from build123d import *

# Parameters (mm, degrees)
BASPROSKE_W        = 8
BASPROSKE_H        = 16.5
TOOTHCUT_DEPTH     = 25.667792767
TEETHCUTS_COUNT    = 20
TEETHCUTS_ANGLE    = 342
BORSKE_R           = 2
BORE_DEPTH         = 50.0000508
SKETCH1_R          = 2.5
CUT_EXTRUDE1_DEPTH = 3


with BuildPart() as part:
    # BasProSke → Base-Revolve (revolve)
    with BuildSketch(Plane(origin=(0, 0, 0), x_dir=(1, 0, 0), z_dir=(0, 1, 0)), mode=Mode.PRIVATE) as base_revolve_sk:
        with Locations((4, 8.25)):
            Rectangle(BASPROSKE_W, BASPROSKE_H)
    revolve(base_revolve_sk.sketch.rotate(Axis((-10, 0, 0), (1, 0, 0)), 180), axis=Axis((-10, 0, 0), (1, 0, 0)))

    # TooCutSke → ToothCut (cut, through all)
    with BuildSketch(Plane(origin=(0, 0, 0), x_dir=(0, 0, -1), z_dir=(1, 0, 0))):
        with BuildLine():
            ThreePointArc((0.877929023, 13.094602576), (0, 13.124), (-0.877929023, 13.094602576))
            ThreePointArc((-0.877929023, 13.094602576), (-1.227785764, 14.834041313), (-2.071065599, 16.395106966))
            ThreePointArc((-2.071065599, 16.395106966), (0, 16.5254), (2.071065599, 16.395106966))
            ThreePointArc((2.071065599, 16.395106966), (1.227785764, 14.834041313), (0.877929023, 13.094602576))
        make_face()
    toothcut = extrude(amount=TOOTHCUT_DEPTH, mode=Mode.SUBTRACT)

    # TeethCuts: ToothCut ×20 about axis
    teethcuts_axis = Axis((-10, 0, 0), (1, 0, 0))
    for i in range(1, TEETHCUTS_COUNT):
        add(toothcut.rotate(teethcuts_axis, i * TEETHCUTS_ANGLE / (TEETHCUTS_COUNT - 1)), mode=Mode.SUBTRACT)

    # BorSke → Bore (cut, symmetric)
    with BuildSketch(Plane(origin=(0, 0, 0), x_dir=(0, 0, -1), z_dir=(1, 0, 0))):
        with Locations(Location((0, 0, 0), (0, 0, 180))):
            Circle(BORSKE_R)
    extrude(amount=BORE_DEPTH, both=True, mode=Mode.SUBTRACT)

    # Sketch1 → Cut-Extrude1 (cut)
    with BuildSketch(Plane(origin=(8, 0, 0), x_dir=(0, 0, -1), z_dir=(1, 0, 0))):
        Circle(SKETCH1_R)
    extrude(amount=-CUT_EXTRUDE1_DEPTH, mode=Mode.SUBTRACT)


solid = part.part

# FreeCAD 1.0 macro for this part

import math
import FreeCAD as App
import Part
import Sketcher

V = App.Vector


def add_polygon(sketch, points):
    """Adds a closed chain of lines whose ends are joined by coincident constraints."""
    first, n = sketch.GeometryCount, len(points)
    for a, b in zip(points, points[1:] + points[:1]):
        sketch.addGeometry(Part.LineSegment(App.Vector(*a, 0), App.Vector(*b, 0)), False)
    for i in range(n):
        sketch.addConstraint(Sketcher.Constraint("Coincident", first + i, 2, first + (i + 1) % n, 1))

doc = App.newDocument("Part")
body = doc.addObject("PartDesign::Body", "Body")

sketch1 = doc.addObject("Sketcher::SketchObject", "Sketch")
body.addObject(sketch1)
sketch1.AttachmentSupport = (doc.XZ_Plane, [""])
sketch1.MapMode = "FlatFace"
add_polygon(sketch1, [(0, -16), (0, 0), (8, 0), (8, -16)])
sketch1.addConstraint(Sketcher.Constraint("Vertical", 0))
sketch1.addConstraint(Sketcher.Constraint("Horizontal", 1))
sketch1.addConstraint(Sketcher.Constraint("Vertical", 2))
sketch1.addConstraint(Sketcher.Constraint("Horizontal", 3))
sketch1.addConstraint(Sketcher.Constraint("Coincident", 0, 2, -1, 1))
sketch1.addConstraint(Sketcher.Constraint("DistanceX", 1, 1, 1, 2, 8.0))
sketch1.addConstraint(Sketcher.Constraint("DistanceY", 0, 1, 0, 2, 16.5))
revolution = doc.addObject("PartDesign::Revolution", "Revolution")
body.addObject(revolution)
revolution.Profile = sketch1
revolution.ReferenceAxis = (sketch1, ["H_Axis"])
revolution.Angle = 360

sketch2 = doc.addObject("Sketcher::SketchObject", "Sketch001")
body.addObject(sketch2)
sketch2.AttachmentSupport = (doc.YZ_Plane, [""])
sketch2.MapMode = "FlatFace"
sketch2.addGeometry(Part.ArcOfCircle(Part.Circle(V(0, 0, 0), V(0, 0, 1), 13.1), math.radians(-3.84), math.radians(3.84)), False)
sketch2.addGeometry(Part.ArcOfCircle(Part.Circle(V(12.8, -6.9, 0), V(0, 0, 1), 6), math.radians(53), math.radians(87)), False)
sketch2.addGeometry(Part.ArcOfCircle(Part.Circle(V(0, 0, 0), V(0, 0, 1), 16.5), math.radians(-7.2), math.radians(7.2)), False)
sketch2.addGeometry(Part.ArcOfCircle(Part.Circle(V(12.8, 6.9, 0), V(0, 0, 1), 6), math.radians(-87), math.radians(-53)), False)
sketch2.addConstraint(Sketcher.Constraint("Coincident", 0, 1, 1, 2))
sketch2.addConstraint(Sketcher.Constraint("Coincident", 1, 1, 2, 1))
sketch2.addConstraint(Sketcher.Constraint("Coincident", 2, 2, 3, 2))
sketch2.addConstraint(Sketcher.Constraint("Coincident", 3, 1, 0, 2))
sketch2.addConstraint(Sketcher.Constraint("Coincident", 0, 3, -1, 1))
sketch2.addConstraint(Sketcher.Constraint("Coincident", 2, 3, -1, 1))
sketch2.addConstraint(Sketcher.Constraint("Equal", 1, 3))
sketch2.addConstraint(Sketcher.Constraint("Symmetric", 1, 3, 3, 3, -1))
sketch2.addConstraint(Sketcher.Constraint("Radius", 1, 6.0))
sketch2.addConstraint(Sketcher.Constraint("Radius", 0, 13.124))
sketch2.addConstraint(Sketcher.Constraint("Radius", 2, 16.5254))
sketch2.addConstraint(Sketcher.Constraint("DistanceY", 0, 1, -1, 1, 0.877929))
sketch2.addConstraint(Sketcher.Constraint("DistanceY", 1, 3, 3, 3, 13.740811))
pocket1 = doc.addObject("PartDesign::Pocket", "Pocket")
body.addObject(pocket1)
pocket1.Profile = sketch2
pocket1.Type = "ThroughAll"
pocket1.Reversed = True
doc.recompute()

polarpattern = doc.addObject("PartDesign::PolarPattern", "PolarPattern")
body.addObject(polarpattern)
polarpattern.Originals = [pocket1]
polarpattern.Axis = (doc.X_Axis, [""])
polarpattern.Angle = 360
polarpattern.Occurrences = 20
body.Tip = polarpattern

sketch3 = doc.addObject("Sketcher::SketchObject", "Sketch002")
body.addObject(sketch3)
sketch3.AttachmentSupport = (doc.YZ_Plane, [""])
sketch3.MapMode = "FlatFace"
sketch3.addGeometry(Part.Circle(V(0, 0, 0), V(0, 0, 1), 2), False)
sketch3.addConstraint(Sketcher.Constraint("Coincident", 0, 3, -1, 1))
sketch3.addConstraint(Sketcher.Constraint("Diameter", 0, 4.0))
pocket2 = doc.addObject("PartDesign::Pocket", "Pocket001")
body.addObject(pocket2)
pocket2.Profile = sketch3
pocket2.Length = 100.000102
pocket2.Midplane = True

sketch4 = doc.addObject("Sketcher::SketchObject", "Sketch003")
body.addObject(sketch4)
sketch4.AttachmentSupport = (doc.YZ_Plane, [""])
sketch4.MapMode = "FlatFace"
sketch4.AttachmentOffset = App.Placement(V(0, 0, 8), App.Rotation())
sketch4.addGeometry(Part.Circle(V(0, 0, 0), V(0, 0, 1), 2.5), False)
sketch4.addConstraint(Sketcher.Constraint("Coincident", 0, 3, -1, 1))
sketch4.addConstraint(Sketcher.Constraint("Diameter", 0, 5.0))
pocket3 = doc.addObject("PartDesign::Pocket", "Pocket002")
body.addObject(pocket3)
pocket3.Profile = sketch4
pocket3.Length = 3

doc.recompute()
